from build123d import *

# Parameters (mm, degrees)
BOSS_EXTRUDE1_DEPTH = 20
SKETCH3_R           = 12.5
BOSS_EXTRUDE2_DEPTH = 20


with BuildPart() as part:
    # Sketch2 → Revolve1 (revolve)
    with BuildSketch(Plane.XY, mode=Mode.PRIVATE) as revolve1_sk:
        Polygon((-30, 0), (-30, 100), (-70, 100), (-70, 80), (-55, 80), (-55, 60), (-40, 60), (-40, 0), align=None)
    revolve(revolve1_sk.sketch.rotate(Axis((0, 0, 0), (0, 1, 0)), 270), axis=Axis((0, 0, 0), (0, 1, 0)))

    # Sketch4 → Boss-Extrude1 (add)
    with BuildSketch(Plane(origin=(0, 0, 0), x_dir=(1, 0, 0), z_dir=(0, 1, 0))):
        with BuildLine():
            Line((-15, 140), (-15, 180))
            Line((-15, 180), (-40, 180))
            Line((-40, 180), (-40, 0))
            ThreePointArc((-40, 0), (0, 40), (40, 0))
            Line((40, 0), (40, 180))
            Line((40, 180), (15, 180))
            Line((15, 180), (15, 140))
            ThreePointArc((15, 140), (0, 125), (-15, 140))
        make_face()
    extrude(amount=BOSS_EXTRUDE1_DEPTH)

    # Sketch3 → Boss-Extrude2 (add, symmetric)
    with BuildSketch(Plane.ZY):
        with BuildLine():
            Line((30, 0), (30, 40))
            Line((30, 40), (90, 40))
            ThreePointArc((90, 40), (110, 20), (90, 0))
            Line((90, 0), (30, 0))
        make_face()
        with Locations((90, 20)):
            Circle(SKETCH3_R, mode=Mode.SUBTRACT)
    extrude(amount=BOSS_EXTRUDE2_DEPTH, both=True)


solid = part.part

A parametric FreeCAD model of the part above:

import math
import FreeCAD as App
import Part
import Sketcher
from FreeCAD import Vector


def add_polygon(sketch, points):
    """Adds a closed chain of lines whose ends are joined by coincident constraints."""
    first, n = sketch.GeometryCount, len(points)
    for a, b in zip(points, points[1:] + points[:1]):
        sketch.addGeometry(Part.LineSegment(App.Vector(*a, 0), App.Vector(*b, 0)), False)
    for i in range(n):
        sketch.addConstraint(Sketcher.Constraint("Coincident", first + i, 2, first + (i + 1) % n, 1))

doc = App.newDocument("Part")
body = doc.addObject("PartDesign::Body", "Body")

sketch1 = body.newObject("Sketcher::SketchObject", "Sketch")
sketch1.AttachmentSupport = (doc.getObject("XY_Plane"), [""])
sketch1.MapMode = "FlatFace"
add_polygon(sketch1, [(-30, 0), (-30, 100), (-70, 100), (-70, 80), (-55, 80), (-55, 60), (-40, 60), (-40, 0)])
sketch1.addConstraint([
    Sketcher.Constraint("Vertical", 0),
    Sketcher.Constraint("Horizontal", 1),
    Sketcher.Constraint("Vertical", 2),
    Sketcher.Constraint("Horizontal", 3),
    Sketcher.Constraint("Vertical", 4),
    Sketcher.Constraint("Horizontal", 5),
    Sketcher.Constraint("Vertical", 6),
    Sketcher.Constraint("Horizontal", 7),
    Sketcher.Constraint("PointOnObject", 6, 2, -1),
    Sketcher.Constraint("Equal", 3, 5),
    Sketcher.Constraint("Equal", 2, 4),
    Sketcher.Constraint("DistanceX", 1, 2, 1, 1, 40.0),
    Sketcher.Constraint("DistanceX", 3, 1, 3, 2, 15.0),
    Sketcher.Constraint("DistanceY", 0, 1, 0, 2, 100.0),
    Sketcher.Constraint("DistanceY", 2, 2, 2, 1, 20.0),
    Sketcher.Constraint("DistanceX", 0, 2, -1, 1, 30.0),
])
revolution = body.newObject("PartDesign::Revolution", "Revolution")
revolution.Profile = sketch1
revolution.ReferenceAxis = (sketch1, ["V_Axis"])
revolution.Angle = 360

sketch2 = body.newObject("Sketcher::SketchObject", "Sketch001")
sketch2.AttachmentSupport = (doc.getObject("XZ_Plane"), [""])
sketch2.MapMode = "FlatFace"
sketch2.addGeometry([
    Part.LineSegment(Vector(-15, -140, 0), Vector(-15, -180, 0)),
    Part.LineSegment(Vector(-15, -180, 0), Vector(-40, -180, 0)),
    Part.LineSegment(Vector(-40, -180, 0), Vector(-40, 0, 0)),
    Part.ArcOfCircle(Part.Circle(Vector(0, 0, 0), Vector(0, 0, 1), 40), math.radians(180), math.radians(360)),
    Part.LineSegment(Vector(40, 0, 0), Vector(40, -180, 0)),
    Part.LineSegment(Vector(40, -180, 0), Vector(15, -180, 0)),
    Part.LineSegment(Vector(15, -180, 0), Vector(15, -140, 0)),
    Part.ArcOfCircle(Part.Circle(Vector(0, -140, 0), Vector(0, 0, 1), 15), math.radians(0), math.radians(180)),
], False)
sketch2.addConstraint([
    Sketcher.Constraint("Coincident", 0, 2, 1, 1),
    Sketcher.Constraint("Coincident", 1, 2, 2, 1),
    Sketcher.Constraint("Tangent", 2, 2, 3, 1),
    Sketcher.Constraint("Tangent", 3, 2, 4, 1),
    Sketcher.Constraint("Coincident", 4, 2, 5, 1),
    Sketcher.Constraint("Coincident", 5, 2, 6, 1),
    Sketcher.Constraint("Tangent", 6, 2, 7, 1),
    Sketcher.Constraint("Tangent", 7, 2, 0, 1),
    Sketcher.Constraint("Vertical", 0),
    Sketcher.Constraint("Horizontal", 1),
    Sketcher.Constraint("Vertical", 2),
    Sketcher.Constraint("Vertical", 4),
    Sketcher.Constraint("Horizontal", 5),
    Sketcher.Constraint("Vertical", 6),
    Sketcher.Constraint("Coincident", 3, 3, -1, 1),
    Sketcher.Constraint("Symmetric", 0, 2, 5, 2, -2),
    Sketcher.Constraint("Radius", 3, 40.0),
    Sketcher.Constraint("Radius", 7, 15.0),
    Sketcher.Constraint("DistanceY", 0, 2, 0, 1, 40.0),
    Sketcher.Constraint("DistanceY", 2, 1, 2, 2, 180.0),
])
pad1 = body.newObject("PartDesign::Pad", "Pad")
pad1.Profile = sketch2
pad1.Length = 20
pad1.Reversed = True

sketch3 = body.newObject("Sketcher::SketchObject", "Sketch002")
sketch3.AttachmentSupport = (doc.getObject("YZ_Plane"), [""])
sketch3.MapMode = "FlatFace"
sketch3.addGeometry([
    Part.LineSegment(Vector(40, 30, 0), Vector(0, 30, 0)),
    Part.LineSegment(Vector(0, 30, 0), Vector(0, 90, 0)),
    Part.ArcOfCircle(Part.Circle(Vector(20, 90, 0), Vector(0, 0, 1), 20), math.radians(0), math.radians(180)),
    Part.LineSegment(Vector(40, 90, 0), Vector(40, 30, 0)),
    Part.Circle(Vector(20, 90, 0), Vector(0, 0, 1), 12.5),
], False)
sketch3.addConstraint([
    Sketcher.Constraint("Coincident", 0, 2, 1, 1),
    Sketcher.Constraint("Tangent", 1, 2, 2, 2),
    Sketcher.Constraint("Tangent", 2, 1, 3, 1),
    Sketcher.Constraint("Coincident", 3, 2, 0, 1),
    Sketcher.Constraint("Horizontal", 0),
    Sketcher.Constraint("Vertical", 1),
    Sketcher.Constraint("Vertical", 3),
    Sketcher.Constraint("Coincident", 4, 3, 2, 3),
    Sketcher.Constraint("PointOnObject", 0, 2, -2),
    Sketcher.Constraint("Diameter", 4, 25.0),
    Sketcher.Constraint("Radius", 2, 20.0),
    Sketcher.Constraint("DistanceY", 1, 1, 1, 2, 60.0),
    Sketcher.Constraint("DistanceY", -1, 1, 2, 3, 90.0),
])
pad2 = body.newObject("PartDesign::Pad", "Pad001")
pad2.Profile = sketch3
pad2.Length = 40
pad2.Midplane = True

doc.recompute()
